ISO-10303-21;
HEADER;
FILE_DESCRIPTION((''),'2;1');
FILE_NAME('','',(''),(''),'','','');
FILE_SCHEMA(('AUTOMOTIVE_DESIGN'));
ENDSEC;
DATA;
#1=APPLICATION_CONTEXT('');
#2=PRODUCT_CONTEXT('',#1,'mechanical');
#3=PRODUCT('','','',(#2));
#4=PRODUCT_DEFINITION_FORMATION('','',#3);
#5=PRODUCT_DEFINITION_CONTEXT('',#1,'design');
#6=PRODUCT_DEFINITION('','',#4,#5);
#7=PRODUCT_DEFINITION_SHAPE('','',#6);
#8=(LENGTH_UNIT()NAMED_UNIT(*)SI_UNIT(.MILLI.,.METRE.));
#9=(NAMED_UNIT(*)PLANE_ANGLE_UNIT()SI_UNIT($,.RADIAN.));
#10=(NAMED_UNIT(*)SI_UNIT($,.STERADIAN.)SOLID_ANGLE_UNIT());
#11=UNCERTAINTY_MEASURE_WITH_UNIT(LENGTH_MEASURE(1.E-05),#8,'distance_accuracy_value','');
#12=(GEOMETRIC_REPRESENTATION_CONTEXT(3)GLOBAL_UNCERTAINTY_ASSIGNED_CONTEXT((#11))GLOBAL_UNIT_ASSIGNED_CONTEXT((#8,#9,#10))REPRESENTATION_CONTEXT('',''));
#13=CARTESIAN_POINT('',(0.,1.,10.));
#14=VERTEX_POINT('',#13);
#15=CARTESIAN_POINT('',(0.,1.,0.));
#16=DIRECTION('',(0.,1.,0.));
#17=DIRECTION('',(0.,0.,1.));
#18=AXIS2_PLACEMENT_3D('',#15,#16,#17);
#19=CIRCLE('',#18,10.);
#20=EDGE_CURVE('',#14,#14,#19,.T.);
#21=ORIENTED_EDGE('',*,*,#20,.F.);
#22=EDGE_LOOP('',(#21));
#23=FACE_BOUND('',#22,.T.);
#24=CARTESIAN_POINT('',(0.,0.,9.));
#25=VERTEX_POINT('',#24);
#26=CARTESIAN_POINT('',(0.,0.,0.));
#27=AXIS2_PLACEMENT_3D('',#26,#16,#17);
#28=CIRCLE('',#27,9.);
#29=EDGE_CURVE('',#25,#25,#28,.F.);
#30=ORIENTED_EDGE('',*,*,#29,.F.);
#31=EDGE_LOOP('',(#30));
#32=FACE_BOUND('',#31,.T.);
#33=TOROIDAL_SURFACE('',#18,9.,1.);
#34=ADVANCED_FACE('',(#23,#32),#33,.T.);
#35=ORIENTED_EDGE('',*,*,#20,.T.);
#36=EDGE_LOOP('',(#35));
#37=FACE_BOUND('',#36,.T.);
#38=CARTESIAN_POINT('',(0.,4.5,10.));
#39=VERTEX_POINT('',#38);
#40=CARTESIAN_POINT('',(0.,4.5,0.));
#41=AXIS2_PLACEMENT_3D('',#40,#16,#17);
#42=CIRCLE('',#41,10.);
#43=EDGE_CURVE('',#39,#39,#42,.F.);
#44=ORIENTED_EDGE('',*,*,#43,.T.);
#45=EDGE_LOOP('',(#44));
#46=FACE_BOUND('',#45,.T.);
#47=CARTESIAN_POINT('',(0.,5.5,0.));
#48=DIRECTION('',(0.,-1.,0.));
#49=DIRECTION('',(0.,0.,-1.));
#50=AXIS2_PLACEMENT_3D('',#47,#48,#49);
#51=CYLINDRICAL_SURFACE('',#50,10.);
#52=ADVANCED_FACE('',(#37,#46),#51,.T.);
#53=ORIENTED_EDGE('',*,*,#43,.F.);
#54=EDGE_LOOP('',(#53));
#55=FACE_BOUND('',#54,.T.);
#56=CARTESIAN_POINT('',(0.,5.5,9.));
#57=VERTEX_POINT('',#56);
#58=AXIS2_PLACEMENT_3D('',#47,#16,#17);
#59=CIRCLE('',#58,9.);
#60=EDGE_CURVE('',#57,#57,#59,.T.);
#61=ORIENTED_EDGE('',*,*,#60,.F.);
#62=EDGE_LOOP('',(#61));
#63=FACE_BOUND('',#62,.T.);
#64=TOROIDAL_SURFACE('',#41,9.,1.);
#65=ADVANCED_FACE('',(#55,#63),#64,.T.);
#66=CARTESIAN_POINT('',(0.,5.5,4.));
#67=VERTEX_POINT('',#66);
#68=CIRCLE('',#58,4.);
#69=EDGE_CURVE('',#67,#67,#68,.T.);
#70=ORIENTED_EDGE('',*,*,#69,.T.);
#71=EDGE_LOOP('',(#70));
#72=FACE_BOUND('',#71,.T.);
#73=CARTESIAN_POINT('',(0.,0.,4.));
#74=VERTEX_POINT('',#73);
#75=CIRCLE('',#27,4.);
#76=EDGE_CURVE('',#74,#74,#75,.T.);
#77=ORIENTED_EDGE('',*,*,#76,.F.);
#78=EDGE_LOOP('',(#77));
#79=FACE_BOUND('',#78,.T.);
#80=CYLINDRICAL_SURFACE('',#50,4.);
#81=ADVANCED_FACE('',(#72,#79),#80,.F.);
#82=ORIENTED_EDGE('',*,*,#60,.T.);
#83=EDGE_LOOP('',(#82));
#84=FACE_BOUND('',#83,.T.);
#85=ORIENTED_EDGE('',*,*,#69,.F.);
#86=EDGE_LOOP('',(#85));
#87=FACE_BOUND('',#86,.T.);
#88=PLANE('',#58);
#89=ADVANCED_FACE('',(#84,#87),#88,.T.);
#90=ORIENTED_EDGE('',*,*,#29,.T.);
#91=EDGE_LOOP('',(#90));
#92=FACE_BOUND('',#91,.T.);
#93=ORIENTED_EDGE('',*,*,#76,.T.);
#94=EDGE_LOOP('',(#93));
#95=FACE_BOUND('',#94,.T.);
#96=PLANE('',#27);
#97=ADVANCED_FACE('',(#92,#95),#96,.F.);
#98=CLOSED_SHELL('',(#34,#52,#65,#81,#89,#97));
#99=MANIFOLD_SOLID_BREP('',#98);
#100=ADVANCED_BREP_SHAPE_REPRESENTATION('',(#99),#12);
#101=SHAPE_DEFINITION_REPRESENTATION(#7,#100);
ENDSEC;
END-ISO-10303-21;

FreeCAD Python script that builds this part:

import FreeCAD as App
import Part
import Sketcher
from FreeCAD import Vector


def edges_at(feature, points):
    """Names of the edges that pass closest to the given points."""
    edges = feature.Shape.Edges
    near = lambda p: min(range(len(edges)), key=lambda i: edges[i].distToShape(Part.Vertex(*p))[0])
    return sorted({f"Edge{near(p) + 1}" for p in points})

doc = App.newDocument("Part")
body = doc.addObject("PartDesign::Body", "Body")

# Sketch on XZ plane
sketch1 = body.newObject("Sketcher::SketchObject", "Sketch")
sketch1.AttachmentSupport = (doc.getObject("XZ_Plane"), [""])
sketch1.MapMode = "FlatFace"
sketch1.addGeometry(Part.Circle(Vector(0, 0, 0), Vector(0, 0, 1), 10), False)
sketch1.addGeometry(Part.Circle(Vector(0, 0, 0), Vector(0, 0, 1), 4), False)
sketch1.addConstraint(Sketcher.Constraint("Coincident", 0, 3, -1, 1))
sketch1.addConstraint(Sketcher.Constraint("Coincident", 1, 3, -1, 1))
sketch1.addConstraint(Sketcher.Constraint("Diameter", 0, 20.0))
sketch1.addConstraint(Sketcher.Constraint("Diameter", 1, 8.0))
pad1 = body.newObject("PartDesign::Pad", "Pad")
pad1.Profile = sketch1
pad1.Length = 5.5
pad1.Reversed = True
doc.recompute()

fillet = body.newObject("PartDesign::Fillet", "Fillet")
fillet.Base = (pad1, edges_at(pad1, [(-10, 0, 0), (-10, 5.5, 0)]))
fillet.Radius = 1

doc.recompute()
